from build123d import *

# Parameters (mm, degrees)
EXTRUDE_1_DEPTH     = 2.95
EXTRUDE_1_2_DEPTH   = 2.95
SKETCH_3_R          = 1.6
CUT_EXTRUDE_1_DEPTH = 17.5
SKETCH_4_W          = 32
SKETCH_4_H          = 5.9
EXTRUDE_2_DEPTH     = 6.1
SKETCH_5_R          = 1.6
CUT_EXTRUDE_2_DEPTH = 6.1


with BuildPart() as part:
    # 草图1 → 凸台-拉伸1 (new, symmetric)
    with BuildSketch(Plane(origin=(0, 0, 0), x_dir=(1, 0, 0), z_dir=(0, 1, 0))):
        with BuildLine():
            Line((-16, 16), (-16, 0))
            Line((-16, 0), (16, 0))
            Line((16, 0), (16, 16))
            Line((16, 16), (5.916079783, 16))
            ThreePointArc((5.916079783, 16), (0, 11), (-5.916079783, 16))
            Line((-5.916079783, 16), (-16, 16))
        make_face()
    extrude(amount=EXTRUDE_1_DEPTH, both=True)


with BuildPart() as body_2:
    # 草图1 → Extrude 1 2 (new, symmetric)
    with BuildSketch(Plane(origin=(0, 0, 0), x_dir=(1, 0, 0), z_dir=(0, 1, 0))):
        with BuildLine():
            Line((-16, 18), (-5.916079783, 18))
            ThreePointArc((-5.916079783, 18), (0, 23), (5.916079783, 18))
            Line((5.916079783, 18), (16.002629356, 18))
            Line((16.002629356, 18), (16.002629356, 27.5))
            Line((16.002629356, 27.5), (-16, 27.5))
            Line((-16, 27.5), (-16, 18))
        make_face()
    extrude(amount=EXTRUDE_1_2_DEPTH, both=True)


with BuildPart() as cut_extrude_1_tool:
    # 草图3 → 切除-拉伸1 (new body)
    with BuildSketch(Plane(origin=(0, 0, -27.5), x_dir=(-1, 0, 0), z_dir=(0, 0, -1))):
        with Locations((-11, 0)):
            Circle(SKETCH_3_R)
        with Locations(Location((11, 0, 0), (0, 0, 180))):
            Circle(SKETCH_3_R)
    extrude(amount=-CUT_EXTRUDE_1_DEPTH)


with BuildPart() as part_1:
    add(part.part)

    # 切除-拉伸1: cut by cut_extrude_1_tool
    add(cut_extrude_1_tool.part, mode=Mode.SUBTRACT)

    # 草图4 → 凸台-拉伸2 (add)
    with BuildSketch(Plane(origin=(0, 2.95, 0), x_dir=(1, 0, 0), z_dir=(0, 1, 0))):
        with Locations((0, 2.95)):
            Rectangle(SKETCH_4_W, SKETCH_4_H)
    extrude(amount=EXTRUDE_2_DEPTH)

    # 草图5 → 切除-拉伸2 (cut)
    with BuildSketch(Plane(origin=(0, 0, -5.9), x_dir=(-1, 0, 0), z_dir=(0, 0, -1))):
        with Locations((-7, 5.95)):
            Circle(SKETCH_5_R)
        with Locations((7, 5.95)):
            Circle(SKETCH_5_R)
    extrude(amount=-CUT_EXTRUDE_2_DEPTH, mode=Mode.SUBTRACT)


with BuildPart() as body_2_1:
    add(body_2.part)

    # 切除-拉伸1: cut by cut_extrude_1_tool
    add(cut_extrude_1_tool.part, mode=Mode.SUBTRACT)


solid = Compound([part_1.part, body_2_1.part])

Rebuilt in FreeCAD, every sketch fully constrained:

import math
import FreeCAD as App
import Part
import Sketcher

V = App.Vector
Q = App.Units.Quantity

doc = App.newDocument("Part")
body = doc.addObject("PartDesign::Body", "Body")

sketch1 = body.newObject("Sketcher::SketchObject", "Sketch")
sketch1.AttachmentSupport = (doc.getObject("XZ_Plane"), [""])
sketch1.MapMode = "FlatFace"
sketch1.addGeometry([
    Part.LineSegment(V(-16, -16, 0), V(-16, 0, 0)),
    Part.LineSegment(V(-16, 0, 0), V(16, 0, 0)),
    Part.LineSegment(V(16, 0, 0), V(16, -16, 0)),
    Part.LineSegment(V(16, -16, 0), V(5.91608, -16, 0)),
    Part.ArcOfCircle(Part.Circle(V(0, -17, 0), V(0, 0, 1), 6), math.radians(9.594068), math.radians(170.405932)),
    Part.LineSegment(V(-5.91608, -16, 0), V(-16, -16, 0)),
], False)
sketch1.addConstraint([
    Sketcher.Constraint("Coincident", 0, 2, 1, 1),
    Sketcher.Constraint("Coincident", 1, 2, 2, 1),
    Sketcher.Constraint("Coincident", 2, 2, 3, 1),
    Sketcher.Constraint("Coincident", 3, 2, 4, 1),
    Sketcher.Constraint("Coincident", 4, 2, 5, 1),
    Sketcher.Constraint("Coincident", 5, 2, 0, 1),
    Sketcher.Constraint("Vertical", 0),
    Sketcher.Constraint("Horizontal", 1),
    Sketcher.Constraint("Vertical", 2),
    Sketcher.Constraint("Horizontal", 3),
    Sketcher.Constraint("Horizontal", 5),
    Sketcher.Constraint("Symmetric", 0, 2, 1, 2, -1, 1),
    Sketcher.Constraint("Symmetric", 3, 2, 4, 2, -2),
    Sketcher.Constraint("Radius", 4, Q("6 mm")),
    Sketcher.Constraint("DistanceX", 1, 1, 1, 2, Q("32 mm")),
    Sketcher.Constraint("DistanceY", 0, 1, 0, 2, Q("16 mm")),
    Sketcher.Constraint("DistanceY", 4, 3, -1, 1, Q("17 mm")),
])
pad1 = body.newObject("PartDesign::Pad", "Pad")
pad1.Profile = sketch1
pad1.Length = 5.9
pad1.Midplane = True
body2 = doc.addObject("PartDesign::Body", "Body001")

sketch2 = body2.newObject("Sketcher::SketchObject", "Sketch001")
sketch2.AttachmentSupport = (doc.getObject("XZ_Plane001"), [""])
sketch2.MapMode = "FlatFace"
sketch2.addGeometry([
    Part.LineSegment(V(-16, -18, 0), V(-5.91608, -18, 0)),
    Part.ArcOfCircle(Part.Circle(V(0, -17, 0), V(0, 0, 1), 6), math.radians(-170.405932), math.radians(-9.594068)),
    Part.LineSegment(V(5.91608, -18, 0), V(16.002629, -18, 0)),
    Part.LineSegment(V(16.002629, -18, 0), V(16.002629, -27.5, 0)),
    Part.LineSegment(V(16.002629, -27.5, 0), V(-16, -27.5, 0)),
    Part.LineSegment(V(-16, -27.5, 0), V(-16, -18, 0)),
], False)
sketch2.addConstraint([
    Sketcher.Constraint("Coincident", 0, 2, 1, 1),
    Sketcher.Constraint("Coincident", 1, 2, 2, 1),
    Sketcher.Constraint("Coincident", 2, 2, 3, 1),
    Sketcher.Constraint("Coincident", 3, 2, 4, 1),
    Sketcher.Constraint("Coincident", 4, 2, 5, 1),
    Sketcher.Constraint("Coincident", 5, 2, 0, 1),
    Sketcher.Constraint("Horizontal", 0),
    Sketcher.Constraint("Horizontal", 2),
    Sketcher.Constraint("Vertical", 3),
    Sketcher.Constraint("Horizontal", 4),
    Sketcher.Constraint("Vertical", 5),
    Sketcher.Constraint("Symmetric", 0, 2, 1, 2, -2),
    Sketcher.Constraint("Radius", 1, Q("6 mm")),
    Sketcher.Constraint("DistanceY", 3, 2, 3, 1, Q("9.5 mm")),
    Sketcher.Constraint("DistanceY", 1, 3, -1, 1, Q("17 mm")),
    Sketcher.Constraint("DistanceY", 0, 2, -1, 1, Q("18 mm")),
    Sketcher.Constraint("DistanceX", 4, 2, -1, 1, Q("16 mm")),
    Sketcher.Constraint("DistanceX", 2, 1, 2, 2, Q("10.08655 mm")),
])
pad2 = body2.newObject("PartDesign::Pad", "Pad001")
pad2.Profile = sketch2
pad2.Length = 5.9
pad2.Midplane = True
body3 = doc.addObject("PartDesign::Body", "Body002")
body3.AllowCompound = True

sketch3 = body3.newObject("Sketcher::SketchObject", "Sketch002")
sketch3.AttachmentSupport = (doc.getObject("XY_Plane002"), [""])
sketch3.MapMode = "FlatFace"
sketch3.AttachmentOffset = App.Placement(V(0, 0, -27.5), App.Rotation())
sketch3.addGeometry([
    Part.Circle(V(11, 0, 0), V(0, 0, 1), 1.6),
    Part.Circle(V(-11, 0, 0), V(0, 0, 1), 1.6),
], False)
sketch3.addConstraint([
    Sketcher.Constraint("Equal", 0, 1),
    Sketcher.Constraint("Symmetric", 0, 3, 1, 3, -1, 1),
    Sketcher.Constraint("PointOnObject", 0, 3, -1),
    Sketcher.Constraint("Diameter", 0, Q("3.2 mm")),
    Sketcher.Constraint("DistanceX", -1, 1, 0, 3, Q("11 mm")),
])
pad3 = body3.newObject("PartDesign::Pad", "Pad002")
pad3.Profile = sketch3
pad3.Length = 17.5
doc.recompute()

body4 = doc.addObject("PartDesign::Body", "Body003")
body4.BaseFeature = body3
boolean = body.newObject("PartDesign::Boolean", "Boolean")
boolean.Type = "Cut"
boolean.addObjects([body4])
doc.recompute()

sketch4 = body.newObject("Sketcher::SketchObject", "Sketch003")
sketch4.AttachmentSupport = (doc.getObject("XZ_Plane"), [""])
sketch4.MapMode = "FlatFace"
sketch4.AttachmentOffset = App.Placement(V(0, 0, -2.95), App.Rotation())
sketch4.addGeometry([
    Part.LineSegment(V(-16, -5.9, 0), V(-16, 0, 0)),
    Part.LineSegment(V(-16, 0, 0), V(16, 0, 0)),
    Part.LineSegment(V(16, 0, 0), V(16, -5.9, 0)),
    Part.LineSegment(V(16, -5.9, 0), V(-16, -5.9, 0)),
], False)
sketch4.addConstraint([
    Sketcher.Constraint("Coincident", 0, 2, 1, 1),
    Sketcher.Constraint("Coincident", 1, 2, 2, 1),
    Sketcher.Constraint("Coincident", 2, 2, 3, 1),
    Sketcher.Constraint("Coincident", 3, 2, 0, 1),
    Sketcher.Constraint("Vertical", 0),
    Sketcher.Constraint("Horizontal", 1),
    Sketcher.Constraint("Vertical", 2),
    Sketcher.Constraint("Horizontal", 3),
    Sketcher.Constraint("Symmetric", 0, 2, 1, 2, -1, 1),
    Sketcher.Constraint("DistanceX", 1, 1, 1, 2, Q("32 mm")),
    Sketcher.Constraint("DistanceY", 0, 1, 0, 2, Q("5.9 mm")),
])
pad4 = body.newObject("PartDesign::Pad", "Pad003")
pad4.Profile = sketch4
pad4.Length = 6.1
pad4.Reversed = True

sketch5 = body.newObject("Sketcher::SketchObject", "Sketch004")
sketch5.AttachmentSupport = (doc.getObject("XY_Plane"), [""])
sketch5.MapMode = "FlatFace"
sketch5.AttachmentOffset = App.Placement(V(0, 0, -5.9), App.Rotation())
sketch5.addGeometry([
    Part.Circle(V(7, 5.95, 0), V(0, 0, 1), 1.6),
    Part.Circle(V(-7, 5.95, 0), V(0, 0, 1), 1.6),
], False)
sketch5.addConstraint([
    Sketcher.Constraint("Equal", 0, 1),
    Sketcher.Constraint("Symmetric", 0, 3, 1, 3, -2),
    Sketcher.Constraint("Diameter", 0, Q("3.2 mm")),
    Sketcher.Constraint("DistanceX", -1, 1, 0, 3, Q("7 mm")),
    Sketcher.Constraint("DistanceY", -1, 1, 0, 3, Q("5.95 mm")),
])
pocket1 = body.newObject("PartDesign::Pocket", "Pocket")
pocket1.Profile = sketch5
pocket1.Length = 6.1
pocket1.Reversed = True
doc.recompute()

boolean2 = body2.newObject("PartDesign::Boolean", "Boolean001")
boolean2.Type = "Cut"
boolean2.addObjects([body3])

doc.recompute()
